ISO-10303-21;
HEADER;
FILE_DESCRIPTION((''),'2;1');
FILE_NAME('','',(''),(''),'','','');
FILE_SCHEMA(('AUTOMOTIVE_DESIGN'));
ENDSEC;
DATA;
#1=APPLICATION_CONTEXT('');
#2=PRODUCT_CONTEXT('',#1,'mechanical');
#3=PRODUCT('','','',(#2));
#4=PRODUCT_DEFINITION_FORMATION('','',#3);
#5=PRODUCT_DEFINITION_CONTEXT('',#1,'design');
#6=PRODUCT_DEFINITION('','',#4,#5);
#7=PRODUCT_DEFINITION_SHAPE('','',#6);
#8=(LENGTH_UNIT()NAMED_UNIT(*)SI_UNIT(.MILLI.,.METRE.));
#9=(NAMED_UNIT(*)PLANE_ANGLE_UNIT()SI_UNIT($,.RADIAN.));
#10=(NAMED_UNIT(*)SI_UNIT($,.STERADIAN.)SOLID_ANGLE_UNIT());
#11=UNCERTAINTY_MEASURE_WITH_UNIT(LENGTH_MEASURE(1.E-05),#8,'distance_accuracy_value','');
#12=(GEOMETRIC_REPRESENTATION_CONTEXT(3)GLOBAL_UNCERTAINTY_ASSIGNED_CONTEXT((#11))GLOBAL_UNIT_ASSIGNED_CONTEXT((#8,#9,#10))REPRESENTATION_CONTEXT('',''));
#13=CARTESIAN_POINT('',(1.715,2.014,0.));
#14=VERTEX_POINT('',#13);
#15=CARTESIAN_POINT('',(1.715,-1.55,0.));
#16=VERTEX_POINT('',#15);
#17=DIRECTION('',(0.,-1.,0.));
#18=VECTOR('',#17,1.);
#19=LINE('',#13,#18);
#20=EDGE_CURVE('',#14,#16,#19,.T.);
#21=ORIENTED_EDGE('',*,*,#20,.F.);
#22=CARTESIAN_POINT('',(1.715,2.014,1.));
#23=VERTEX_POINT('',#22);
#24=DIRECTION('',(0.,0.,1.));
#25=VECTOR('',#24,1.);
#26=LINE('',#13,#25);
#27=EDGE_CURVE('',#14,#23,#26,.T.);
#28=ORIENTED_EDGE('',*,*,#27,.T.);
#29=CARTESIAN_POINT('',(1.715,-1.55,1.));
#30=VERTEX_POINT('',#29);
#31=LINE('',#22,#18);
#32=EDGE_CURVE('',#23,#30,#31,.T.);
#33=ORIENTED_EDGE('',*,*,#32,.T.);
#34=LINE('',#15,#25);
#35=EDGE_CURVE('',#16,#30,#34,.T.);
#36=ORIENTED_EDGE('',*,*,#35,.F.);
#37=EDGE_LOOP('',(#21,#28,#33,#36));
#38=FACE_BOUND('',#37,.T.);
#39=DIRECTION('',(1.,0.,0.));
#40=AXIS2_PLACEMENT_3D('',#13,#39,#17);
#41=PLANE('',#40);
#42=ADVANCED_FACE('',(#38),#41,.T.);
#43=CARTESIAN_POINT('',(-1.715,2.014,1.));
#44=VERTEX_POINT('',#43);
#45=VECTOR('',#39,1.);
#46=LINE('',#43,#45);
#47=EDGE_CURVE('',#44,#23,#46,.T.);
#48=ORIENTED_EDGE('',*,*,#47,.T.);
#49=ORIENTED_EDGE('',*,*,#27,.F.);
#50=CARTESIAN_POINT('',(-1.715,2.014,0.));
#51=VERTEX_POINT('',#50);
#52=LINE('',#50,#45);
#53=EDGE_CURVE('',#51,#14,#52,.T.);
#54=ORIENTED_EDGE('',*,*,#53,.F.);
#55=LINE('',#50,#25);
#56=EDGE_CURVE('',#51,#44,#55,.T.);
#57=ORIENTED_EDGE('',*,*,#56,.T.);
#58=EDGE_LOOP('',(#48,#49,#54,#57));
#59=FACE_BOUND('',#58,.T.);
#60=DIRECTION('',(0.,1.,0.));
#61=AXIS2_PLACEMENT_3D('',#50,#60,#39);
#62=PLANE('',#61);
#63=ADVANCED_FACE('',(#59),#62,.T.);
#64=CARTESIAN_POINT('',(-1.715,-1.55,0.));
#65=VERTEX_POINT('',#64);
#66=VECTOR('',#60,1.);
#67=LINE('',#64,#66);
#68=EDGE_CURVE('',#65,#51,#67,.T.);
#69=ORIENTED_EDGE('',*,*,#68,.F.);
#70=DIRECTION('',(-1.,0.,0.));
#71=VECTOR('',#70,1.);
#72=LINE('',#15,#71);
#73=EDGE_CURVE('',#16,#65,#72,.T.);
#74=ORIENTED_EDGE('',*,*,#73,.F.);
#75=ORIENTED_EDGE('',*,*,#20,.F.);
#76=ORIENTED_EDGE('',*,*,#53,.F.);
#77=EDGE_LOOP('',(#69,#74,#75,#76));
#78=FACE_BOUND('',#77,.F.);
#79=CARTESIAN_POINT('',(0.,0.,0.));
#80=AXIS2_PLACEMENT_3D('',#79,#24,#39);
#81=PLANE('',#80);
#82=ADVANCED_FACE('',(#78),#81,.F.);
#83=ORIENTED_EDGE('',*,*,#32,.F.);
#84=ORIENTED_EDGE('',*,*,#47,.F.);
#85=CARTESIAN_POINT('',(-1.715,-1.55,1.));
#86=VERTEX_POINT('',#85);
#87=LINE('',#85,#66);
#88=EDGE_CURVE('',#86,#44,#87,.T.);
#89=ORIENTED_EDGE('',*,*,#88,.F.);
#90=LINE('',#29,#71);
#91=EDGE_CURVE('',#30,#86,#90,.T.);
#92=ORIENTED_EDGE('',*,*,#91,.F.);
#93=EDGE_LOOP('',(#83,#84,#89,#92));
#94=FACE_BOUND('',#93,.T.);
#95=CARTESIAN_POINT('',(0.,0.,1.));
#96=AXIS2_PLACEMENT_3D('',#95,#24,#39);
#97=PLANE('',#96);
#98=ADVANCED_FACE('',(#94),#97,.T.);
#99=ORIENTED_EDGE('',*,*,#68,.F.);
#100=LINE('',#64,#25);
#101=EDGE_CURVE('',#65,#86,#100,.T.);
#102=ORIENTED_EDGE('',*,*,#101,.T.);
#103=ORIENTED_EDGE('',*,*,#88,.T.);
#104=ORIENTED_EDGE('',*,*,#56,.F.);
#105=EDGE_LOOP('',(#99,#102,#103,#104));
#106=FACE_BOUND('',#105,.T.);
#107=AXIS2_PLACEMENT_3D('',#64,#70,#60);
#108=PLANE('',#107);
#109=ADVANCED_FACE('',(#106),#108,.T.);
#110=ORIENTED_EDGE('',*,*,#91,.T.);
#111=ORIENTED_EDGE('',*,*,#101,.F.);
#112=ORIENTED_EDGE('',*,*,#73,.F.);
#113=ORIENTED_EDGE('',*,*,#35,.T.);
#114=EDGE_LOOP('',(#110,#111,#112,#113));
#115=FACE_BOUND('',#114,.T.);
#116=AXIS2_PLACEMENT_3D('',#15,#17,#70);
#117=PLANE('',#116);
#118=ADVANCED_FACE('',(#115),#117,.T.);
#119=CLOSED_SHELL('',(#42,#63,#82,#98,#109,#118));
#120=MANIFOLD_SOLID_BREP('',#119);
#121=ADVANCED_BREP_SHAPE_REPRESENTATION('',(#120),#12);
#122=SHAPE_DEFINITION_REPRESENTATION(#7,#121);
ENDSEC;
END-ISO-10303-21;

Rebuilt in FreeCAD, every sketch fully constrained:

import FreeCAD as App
import Part
import Sketcher

V = App.Vector

doc = App.newDocument("Part")
body = doc.addObject("PartDesign::Body", "Body")

sketch1 = body.newObject("Sketcher::SketchObject", "Sketch")
sketch1.AttachmentSupport = (doc.getObject("XY_Plane"), [""])
sketch1.MapMode = "FlatFace"
sketch1.addGeometry([
    Part.LineSegment(V(-1.7, 2, 0), V(-1.7, -1.6, 0)),
    Part.LineSegment(V(-1.7, -1.6, 0), V(1.7, -1.6, 0)),
    Part.LineSegment(V(1.7, -1.6, 0), V(1.7, 2, 0)),
    Part.LineSegment(V(1.7, 2, 0), V(-1.7, 2, 0)),
], False)
sketch1.addConstraint([
    Sketcher.Constraint("Coincident", 0, 2, 1, 1),
    Sketcher.Constraint("Coincident", 1, 2, 2, 1),
    Sketcher.Constraint("Coincident", 2, 2, 3, 1),
    Sketcher.Constraint("Coincident", 3, 2, 0, 1),
    Sketcher.Constraint("Vertical", 0),
    Sketcher.Constraint("Horizontal", 1),
    Sketcher.Constraint("Vertical", 2),
    Sketcher.Constraint("Horizontal", 3),
    Sketcher.Constraint("DistanceX", 1, 1, 1, 2, 3.43),
    Sketcher.Constraint("DistanceY", 0, 2, 0, 1, 3.564),
    Sketcher.Constraint("DistanceY", 0, 2, -1, 1, 1.55),
    Sketcher.Constraint("DistanceX", 0, 2, -1, 1, 1.715),
])
pad1 = body.newObject("PartDesign::Pad", "Pad")
pad1.Profile = sketch1
pad1.Length = 1

doc.recompute()
